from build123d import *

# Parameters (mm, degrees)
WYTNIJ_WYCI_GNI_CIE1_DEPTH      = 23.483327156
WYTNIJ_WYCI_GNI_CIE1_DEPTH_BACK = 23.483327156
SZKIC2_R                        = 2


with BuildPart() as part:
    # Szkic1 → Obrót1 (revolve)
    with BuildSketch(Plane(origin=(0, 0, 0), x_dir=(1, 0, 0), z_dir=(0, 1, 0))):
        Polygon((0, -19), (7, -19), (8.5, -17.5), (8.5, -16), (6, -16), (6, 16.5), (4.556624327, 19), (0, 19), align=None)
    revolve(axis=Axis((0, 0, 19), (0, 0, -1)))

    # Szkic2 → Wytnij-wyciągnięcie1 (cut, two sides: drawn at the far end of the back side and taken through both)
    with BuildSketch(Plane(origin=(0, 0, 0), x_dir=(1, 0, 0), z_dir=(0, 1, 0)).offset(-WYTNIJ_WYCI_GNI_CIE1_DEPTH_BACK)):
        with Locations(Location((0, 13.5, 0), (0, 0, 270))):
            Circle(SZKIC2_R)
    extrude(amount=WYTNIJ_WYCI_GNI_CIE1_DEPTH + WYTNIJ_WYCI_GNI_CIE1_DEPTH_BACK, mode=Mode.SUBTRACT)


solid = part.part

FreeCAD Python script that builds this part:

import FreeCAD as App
import Part
import Sketcher

V = App.Vector
Q = App.Units.Quantity


def add_polygon(sketch, points):
    """Adds a closed chain of lines whose ends are joined by coincident constraints."""
    first, n = sketch.GeometryCount, len(points)
    for a, b in zip(points, points[1:] + points[:1]):
        sketch.addGeometry(Part.LineSegment(App.Vector(*a, 0), App.Vector(*b, 0)), False)
    for i in range(n):
        sketch.addConstraint(Sketcher.Constraint("Coincident", first + i, 2, first + (i + 1) % n, 1))

doc = App.newDocument("Part")
body = doc.addObject("PartDesign::Body", "Body")

sketch1 = body.newObject("Sketcher::SketchObject", "Sketch")
sketch1.AttachmentSupport = (doc.getObject("XZ_Plane"), [""])
sketch1.MapMode = "FlatFace"
add_polygon(sketch1, [(0, 19), (7, 19), (8.5, 17.5), (8.5, 16), (6, 16), (6, -16.5), (4.6, -19), (0, -19)])
sketch1.addConstraint([
    Sketcher.Constraint("Horizontal", 0),
    Sketcher.Constraint("Vertical", 2),
    Sketcher.Constraint("Horizontal", 3),
    Sketcher.Constraint("Vertical", 4),
    Sketcher.Constraint("Horizontal", 6),
    Sketcher.Constraint("Vertical", 7),
    Sketcher.Constraint("Symmetric", 6, 2, 7, 2, -1, 1),
    Sketcher.Constraint("DistanceX", 0, 1, 0, 2, 7.0),
    Sketcher.Constraint("DistanceY", 7, 1, 7, 2, 38.0),
    Sketcher.Constraint("Angle", 1, Q("-45 deg")),
    Sketcher.Constraint("Angle", 5, Q("-120 deg")),
    Sketcher.Constraint("DistanceX", 3, 2, 3, 1, 2.5),
    Sketcher.Constraint("DistanceY", 2, 2, 2, 1, 1.5),
    Sketcher.Constraint("DistanceY", 4, 2, 4, 1, 32.5),
    Sketcher.Constraint("DistanceY", -1, 1, 2, 2, 16.0),
])
revolution = body.newObject("PartDesign::Revolution", "Revolution")
revolution.Profile = sketch1
revolution.ReferenceAxis = (sketch1, ["V_Axis"])
revolution.Angle = 360

sketch2 = body.newObject("Sketcher::SketchObject", "Sketch001")
sketch2.AttachmentSupport = (doc.getObject("XZ_Plane"), [""])
sketch2.MapMode = "FlatFace"
sketch2.addGeometry(Part.Circle(V(0, -13.5, 0), V(0, 0, 1), 2), False)
sketch2.addConstraint([
    Sketcher.Constraint("PointOnObject", 0, 3, -2),
    Sketcher.Constraint("Diameter", 0, 4.0),
    Sketcher.Constraint("DistanceY", 0, 3, -1, 1, 13.5),
])
pocket1 = body.newObject("PartDesign::Pocket", "Pocket")
pocket1.Profile = sketch2
pocket1.Type = "ThroughAll"
pocket1.Midplane = True

doc.recompute()
